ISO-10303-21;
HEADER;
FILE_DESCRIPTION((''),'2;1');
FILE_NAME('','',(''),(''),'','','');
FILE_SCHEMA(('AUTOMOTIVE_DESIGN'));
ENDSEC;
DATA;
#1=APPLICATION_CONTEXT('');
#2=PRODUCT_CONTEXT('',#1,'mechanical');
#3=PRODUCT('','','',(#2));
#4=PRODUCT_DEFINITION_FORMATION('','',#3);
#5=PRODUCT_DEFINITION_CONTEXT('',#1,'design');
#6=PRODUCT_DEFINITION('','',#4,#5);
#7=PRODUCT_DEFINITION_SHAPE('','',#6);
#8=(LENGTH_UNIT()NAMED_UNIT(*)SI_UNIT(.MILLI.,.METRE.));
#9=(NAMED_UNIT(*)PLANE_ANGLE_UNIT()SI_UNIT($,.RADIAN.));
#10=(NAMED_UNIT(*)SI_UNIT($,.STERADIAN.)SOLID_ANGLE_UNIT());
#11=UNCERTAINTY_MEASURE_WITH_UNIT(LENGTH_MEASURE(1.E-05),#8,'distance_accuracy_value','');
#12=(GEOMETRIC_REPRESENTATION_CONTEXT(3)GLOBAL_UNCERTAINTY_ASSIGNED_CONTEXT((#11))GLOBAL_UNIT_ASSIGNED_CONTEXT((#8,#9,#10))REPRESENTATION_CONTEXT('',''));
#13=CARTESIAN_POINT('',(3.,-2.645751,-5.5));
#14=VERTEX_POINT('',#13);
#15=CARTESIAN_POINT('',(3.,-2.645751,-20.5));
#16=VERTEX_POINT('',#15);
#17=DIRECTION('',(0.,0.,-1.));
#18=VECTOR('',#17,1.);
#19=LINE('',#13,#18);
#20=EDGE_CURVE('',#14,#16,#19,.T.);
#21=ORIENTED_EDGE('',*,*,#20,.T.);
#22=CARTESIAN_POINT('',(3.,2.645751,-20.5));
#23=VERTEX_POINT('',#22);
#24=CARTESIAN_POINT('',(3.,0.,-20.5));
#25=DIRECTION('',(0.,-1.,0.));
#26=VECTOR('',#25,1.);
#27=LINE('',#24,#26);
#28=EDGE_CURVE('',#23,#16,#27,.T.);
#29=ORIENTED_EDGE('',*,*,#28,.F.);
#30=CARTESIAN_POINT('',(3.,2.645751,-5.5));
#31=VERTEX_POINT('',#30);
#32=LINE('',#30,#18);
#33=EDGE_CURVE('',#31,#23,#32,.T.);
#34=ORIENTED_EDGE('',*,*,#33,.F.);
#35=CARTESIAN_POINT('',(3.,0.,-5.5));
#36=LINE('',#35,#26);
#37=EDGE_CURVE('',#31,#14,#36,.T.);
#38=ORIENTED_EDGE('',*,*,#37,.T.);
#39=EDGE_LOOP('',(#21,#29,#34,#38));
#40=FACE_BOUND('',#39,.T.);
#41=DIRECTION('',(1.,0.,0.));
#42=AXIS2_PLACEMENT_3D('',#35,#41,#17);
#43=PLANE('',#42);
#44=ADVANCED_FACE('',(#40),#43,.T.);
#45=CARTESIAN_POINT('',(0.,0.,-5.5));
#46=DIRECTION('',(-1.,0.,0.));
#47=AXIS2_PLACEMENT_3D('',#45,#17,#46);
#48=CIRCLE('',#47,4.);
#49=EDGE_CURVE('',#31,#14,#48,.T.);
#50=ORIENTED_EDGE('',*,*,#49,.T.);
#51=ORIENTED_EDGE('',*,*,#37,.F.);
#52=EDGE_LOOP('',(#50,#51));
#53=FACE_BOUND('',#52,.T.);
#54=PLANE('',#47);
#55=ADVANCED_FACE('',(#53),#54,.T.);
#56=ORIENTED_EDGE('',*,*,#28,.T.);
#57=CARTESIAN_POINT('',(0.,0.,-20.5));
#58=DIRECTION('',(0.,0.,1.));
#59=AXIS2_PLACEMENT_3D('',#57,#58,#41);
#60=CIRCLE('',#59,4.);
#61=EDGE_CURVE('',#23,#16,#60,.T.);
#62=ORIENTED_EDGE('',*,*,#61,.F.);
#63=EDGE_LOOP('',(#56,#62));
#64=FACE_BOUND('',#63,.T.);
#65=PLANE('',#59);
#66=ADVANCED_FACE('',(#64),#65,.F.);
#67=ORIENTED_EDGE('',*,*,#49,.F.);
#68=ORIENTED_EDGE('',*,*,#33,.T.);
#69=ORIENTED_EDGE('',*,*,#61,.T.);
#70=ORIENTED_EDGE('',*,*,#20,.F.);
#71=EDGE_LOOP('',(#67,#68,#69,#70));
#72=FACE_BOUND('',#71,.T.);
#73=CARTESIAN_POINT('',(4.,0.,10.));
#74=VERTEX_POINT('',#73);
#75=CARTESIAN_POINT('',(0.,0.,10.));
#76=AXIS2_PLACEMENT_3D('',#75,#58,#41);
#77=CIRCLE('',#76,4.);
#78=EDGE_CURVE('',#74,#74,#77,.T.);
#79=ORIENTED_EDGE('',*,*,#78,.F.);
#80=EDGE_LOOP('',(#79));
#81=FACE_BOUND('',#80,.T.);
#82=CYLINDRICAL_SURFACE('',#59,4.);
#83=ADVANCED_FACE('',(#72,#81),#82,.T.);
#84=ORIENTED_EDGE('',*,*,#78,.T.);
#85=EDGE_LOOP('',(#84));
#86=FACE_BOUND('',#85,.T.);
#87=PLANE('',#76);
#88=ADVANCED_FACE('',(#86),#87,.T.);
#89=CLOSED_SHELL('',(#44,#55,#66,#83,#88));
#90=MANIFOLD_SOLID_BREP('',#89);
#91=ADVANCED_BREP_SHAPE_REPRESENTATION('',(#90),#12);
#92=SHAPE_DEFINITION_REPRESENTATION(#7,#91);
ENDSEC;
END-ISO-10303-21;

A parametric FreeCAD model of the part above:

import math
import FreeCAD as App
import Part
import Sketcher
Q = App.Units.Quantity

doc = App.newDocument("Part")
body = doc.addObject("PartDesign::Body", "Body")

sketch1 = body.newObject("Sketcher::SketchObject", "Sketch")
sketch1.AttachmentSupport = (doc.getObject("XY_Plane"), [""])
sketch1.MapMode = "FlatFace"
sketch1.addGeometry(Part.Circle(App.Vector(0, 0, 0), App.Vector(0, 0, 1), 4), False)
sketch1.addConstraint([
    Sketcher.Constraint("Coincident", 0, 3, -1, 1),
    Sketcher.Constraint("Diameter", 0, Q("8 mm")),
])
pad1 = body.newObject("PartDesign::Pad", "Pad")
pad1.Profile = sketch1
pad1.Type = "TwoLengths"
pad1.Length = 10
pad1.Length2 = 20.5

sketch2 = body.newObject("Sketcher::SketchObject", "Sketch001")
sketch2.AttachmentSupport = (doc.getObject("XY_Plane"), [""])
sketch2.MapMode = "FlatFace"
sketch2.AttachmentOffset = App.Placement(App.Vector(0, 0, -20.5), App.Rotation())
sketch2.addGeometry([
    Part.LineSegment(App.Vector(3, -2.645751, 0), App.Vector(3, 2.645751, 0)),
    Part.ArcOfCircle(Part.Circle(App.Vector(0, 0, 0), App.Vector(0, 0, 1), 4), math.radians(-41.409622), math.radians(41.409622)),
], False)
sketch2.addConstraint([
    Sketcher.Constraint("Coincident", 0, 1, 1, 1),
    Sketcher.Constraint("Coincident", 1, 2, 0, 2),
    Sketcher.Constraint("Vertical", 0),
    Sketcher.Constraint("Coincident", 1, 3, -1, 1),
    Sketcher.Constraint("Radius", 1, Q("4 mm")),
    Sketcher.Constraint("DistanceX", -1, 1, 0, 1, Q("3 mm")),
])
pocket1 = body.newObject("PartDesign::Pocket", "Pocket")
pocket1.Profile = sketch2
pocket1.Length = 15
pocket1.Reversed = True

doc.recompute()
